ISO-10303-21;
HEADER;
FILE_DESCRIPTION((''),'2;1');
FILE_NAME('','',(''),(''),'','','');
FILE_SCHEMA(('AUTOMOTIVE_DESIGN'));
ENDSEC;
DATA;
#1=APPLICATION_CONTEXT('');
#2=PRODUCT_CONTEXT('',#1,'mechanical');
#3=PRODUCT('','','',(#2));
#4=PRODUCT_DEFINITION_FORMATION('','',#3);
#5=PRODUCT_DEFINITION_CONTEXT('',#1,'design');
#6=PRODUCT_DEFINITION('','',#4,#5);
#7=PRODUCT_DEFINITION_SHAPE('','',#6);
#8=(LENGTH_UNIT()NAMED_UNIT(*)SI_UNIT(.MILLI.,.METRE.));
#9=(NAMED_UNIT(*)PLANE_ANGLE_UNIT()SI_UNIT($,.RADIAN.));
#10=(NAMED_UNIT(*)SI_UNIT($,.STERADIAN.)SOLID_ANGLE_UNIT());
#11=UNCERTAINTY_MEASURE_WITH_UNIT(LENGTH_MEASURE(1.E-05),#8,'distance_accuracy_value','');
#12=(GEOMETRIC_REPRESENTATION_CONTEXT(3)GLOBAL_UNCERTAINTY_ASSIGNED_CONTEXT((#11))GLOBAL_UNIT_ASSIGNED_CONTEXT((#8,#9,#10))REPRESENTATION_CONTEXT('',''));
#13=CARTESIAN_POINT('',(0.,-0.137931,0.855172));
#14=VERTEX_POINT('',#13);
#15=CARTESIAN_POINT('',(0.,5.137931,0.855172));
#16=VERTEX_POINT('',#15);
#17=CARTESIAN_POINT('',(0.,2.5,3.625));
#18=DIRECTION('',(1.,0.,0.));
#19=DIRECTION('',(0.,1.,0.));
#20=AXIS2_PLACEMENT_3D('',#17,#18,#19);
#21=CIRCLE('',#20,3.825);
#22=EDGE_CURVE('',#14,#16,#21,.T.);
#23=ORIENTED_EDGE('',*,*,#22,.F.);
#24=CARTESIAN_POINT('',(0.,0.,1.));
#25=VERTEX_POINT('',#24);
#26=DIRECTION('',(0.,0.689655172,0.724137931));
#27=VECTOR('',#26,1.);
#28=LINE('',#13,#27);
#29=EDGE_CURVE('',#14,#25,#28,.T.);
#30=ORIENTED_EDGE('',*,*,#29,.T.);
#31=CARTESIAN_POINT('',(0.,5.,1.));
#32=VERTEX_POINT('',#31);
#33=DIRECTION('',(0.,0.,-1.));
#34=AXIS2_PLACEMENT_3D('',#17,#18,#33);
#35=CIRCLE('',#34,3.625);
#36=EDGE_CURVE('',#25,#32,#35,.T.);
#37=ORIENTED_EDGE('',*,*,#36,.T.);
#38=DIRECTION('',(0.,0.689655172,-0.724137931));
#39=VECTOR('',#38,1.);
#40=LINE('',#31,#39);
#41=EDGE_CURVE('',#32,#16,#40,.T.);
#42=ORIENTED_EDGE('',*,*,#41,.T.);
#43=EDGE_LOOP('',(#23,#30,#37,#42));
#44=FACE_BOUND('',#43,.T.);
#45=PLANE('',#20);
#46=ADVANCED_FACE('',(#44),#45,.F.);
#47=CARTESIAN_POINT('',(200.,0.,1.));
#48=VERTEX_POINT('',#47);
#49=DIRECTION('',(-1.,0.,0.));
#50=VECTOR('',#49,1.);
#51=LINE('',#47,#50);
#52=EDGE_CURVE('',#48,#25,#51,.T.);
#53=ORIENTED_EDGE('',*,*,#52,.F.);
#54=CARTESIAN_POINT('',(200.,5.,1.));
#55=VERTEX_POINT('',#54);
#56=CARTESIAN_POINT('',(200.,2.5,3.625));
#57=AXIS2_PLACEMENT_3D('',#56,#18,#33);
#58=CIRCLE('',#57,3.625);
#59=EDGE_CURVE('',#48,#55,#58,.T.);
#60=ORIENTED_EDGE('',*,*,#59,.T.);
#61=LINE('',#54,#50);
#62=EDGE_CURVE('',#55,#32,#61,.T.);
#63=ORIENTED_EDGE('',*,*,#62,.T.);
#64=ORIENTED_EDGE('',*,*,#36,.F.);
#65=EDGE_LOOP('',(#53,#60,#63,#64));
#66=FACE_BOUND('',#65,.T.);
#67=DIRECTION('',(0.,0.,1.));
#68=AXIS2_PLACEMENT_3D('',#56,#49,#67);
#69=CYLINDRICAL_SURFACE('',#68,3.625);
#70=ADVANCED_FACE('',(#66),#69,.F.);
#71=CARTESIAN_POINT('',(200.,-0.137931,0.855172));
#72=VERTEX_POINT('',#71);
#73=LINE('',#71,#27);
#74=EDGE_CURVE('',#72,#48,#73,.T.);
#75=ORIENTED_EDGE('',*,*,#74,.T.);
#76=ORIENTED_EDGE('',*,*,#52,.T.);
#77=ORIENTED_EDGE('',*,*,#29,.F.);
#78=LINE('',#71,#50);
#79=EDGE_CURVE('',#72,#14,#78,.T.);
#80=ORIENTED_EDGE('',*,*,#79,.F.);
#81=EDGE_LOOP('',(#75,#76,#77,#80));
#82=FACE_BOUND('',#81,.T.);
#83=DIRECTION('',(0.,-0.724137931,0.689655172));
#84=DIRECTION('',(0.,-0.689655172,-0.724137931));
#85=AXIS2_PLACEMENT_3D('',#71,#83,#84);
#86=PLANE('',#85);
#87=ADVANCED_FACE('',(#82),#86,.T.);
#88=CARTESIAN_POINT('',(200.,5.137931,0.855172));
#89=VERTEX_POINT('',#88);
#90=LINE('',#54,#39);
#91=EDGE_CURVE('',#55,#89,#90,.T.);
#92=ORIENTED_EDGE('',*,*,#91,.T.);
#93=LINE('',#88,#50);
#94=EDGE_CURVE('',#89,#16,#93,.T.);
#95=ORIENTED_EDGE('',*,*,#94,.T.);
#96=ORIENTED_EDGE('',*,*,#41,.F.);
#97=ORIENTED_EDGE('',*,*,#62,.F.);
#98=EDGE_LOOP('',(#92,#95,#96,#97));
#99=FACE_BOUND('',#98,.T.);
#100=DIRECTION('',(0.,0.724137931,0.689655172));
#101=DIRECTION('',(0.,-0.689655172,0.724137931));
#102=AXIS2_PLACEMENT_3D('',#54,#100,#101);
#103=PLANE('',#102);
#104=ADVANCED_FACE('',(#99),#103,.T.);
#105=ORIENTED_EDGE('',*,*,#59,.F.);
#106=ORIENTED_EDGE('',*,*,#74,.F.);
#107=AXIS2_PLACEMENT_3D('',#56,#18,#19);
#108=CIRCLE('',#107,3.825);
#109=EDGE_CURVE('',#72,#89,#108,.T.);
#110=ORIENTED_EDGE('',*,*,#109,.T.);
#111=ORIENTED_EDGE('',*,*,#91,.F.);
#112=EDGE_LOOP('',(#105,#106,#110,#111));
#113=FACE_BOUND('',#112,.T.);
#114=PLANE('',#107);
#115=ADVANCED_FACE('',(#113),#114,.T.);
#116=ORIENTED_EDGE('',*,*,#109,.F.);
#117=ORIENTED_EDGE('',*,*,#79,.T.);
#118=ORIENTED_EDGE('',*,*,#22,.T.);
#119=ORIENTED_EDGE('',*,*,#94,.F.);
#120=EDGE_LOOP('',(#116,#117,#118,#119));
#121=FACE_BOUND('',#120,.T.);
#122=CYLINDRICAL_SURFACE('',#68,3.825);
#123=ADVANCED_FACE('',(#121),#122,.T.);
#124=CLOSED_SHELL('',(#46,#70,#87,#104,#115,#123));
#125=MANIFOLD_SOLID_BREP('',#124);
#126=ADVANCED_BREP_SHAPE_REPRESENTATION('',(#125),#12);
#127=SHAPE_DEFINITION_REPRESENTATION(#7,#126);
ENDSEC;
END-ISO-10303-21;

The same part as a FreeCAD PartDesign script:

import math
import FreeCAD as App
import Part
import Sketcher
from FreeCAD import Vector
Q = App.Units.Quantity

doc = App.newDocument("Part")
params = doc.addObject("Spreadsheet::Sheet", "Params")
for row, (alias, value) in enumerate([
    ("pad1_length", "200 mm"),
], start=1):
    params.set(f"A{row}", alias)
    params.set(f"B{row}", "=" + value)
    params.setAlias(f"B{row}", alias)

body = doc.addObject("PartDesign::Body", "Body")

# Sketch on YZ plane
sketch1 = body.newObject("Sketcher::SketchObject", "Sketch")
sketch1.AttachmentSupport = (doc.getObject("YZ_Plane"), [""])
sketch1.MapMode = "FlatFace"
sketch1.addGeometry(Part.ArcOfCircle(Part.Circle(Vector(2.5, 3.625, 0), Vector(0, 0, 1), 3.625), math.radians(-133.602819), math.radians(-46.397181)), False)
sketch1.addGeometry(Part.LineSegment(Vector(0, 1, 0), Vector(-0.137931, 0.855172, 0)), False)
sketch1.addGeometry(Part.ArcOfCircle(Part.Circle(Vector(2.5, 3.625, 0), Vector(0, 0, 1), 3.825), math.radians(-133.602819), math.radians(-46.397181)), False)
sketch1.addGeometry(Part.LineSegment(Vector(5.137931, 0.855172, 0), Vector(5, 1, 0)), False)
sketch1.addConstraint(Sketcher.Constraint("Coincident", 0, 1, 1, 1))
sketch1.addConstraint(Sketcher.Constraint("Coincident", 1, 2, 2, 1))
sketch1.addConstraint(Sketcher.Constraint("Coincident", 2, 2, 3, 1))
sketch1.addConstraint(Sketcher.Constraint("Coincident", 3, 2, 0, 2))
sketch1.addConstraint(Sketcher.Constraint("Coincident", 2, 3, 0, 3))
sketch1.addConstraint(Sketcher.Constraint("PointOnObject", 0, 1, -2))
sketch1.addConstraint(Sketcher.Constraint("Horizontal", 1, 2, 2, 2))
sketch1.addConstraint(Sketcher.Constraint("Horizontal", 0, 1, 3, 2))
sketch1.addConstraint(Sketcher.Constraint("DistanceY", -1, 1, 0, 1, Q("1 mm")))
sketch1.addConstraint(Sketcher.Constraint("DistanceX", -1, 1, 3, 2, Q("5 mm")))
sketch1.addConstraint(Sketcher.Constraint("Radius", 0, Q("3.625 mm")))
sketch1.addConstraint(Sketcher.Constraint("Radius", 2, Q("3.825 mm")))
sketch1.addConstraint(Sketcher.Constraint("DistanceX", 1, 2, -1, 1, Q("0.137931 mm")))
pad1 = body.newObject("PartDesign::Pad", "Pad")
pad1.Profile = sketch1
pad1.setExpression("Length", "Params.pad1_length")

doc.recompute()
